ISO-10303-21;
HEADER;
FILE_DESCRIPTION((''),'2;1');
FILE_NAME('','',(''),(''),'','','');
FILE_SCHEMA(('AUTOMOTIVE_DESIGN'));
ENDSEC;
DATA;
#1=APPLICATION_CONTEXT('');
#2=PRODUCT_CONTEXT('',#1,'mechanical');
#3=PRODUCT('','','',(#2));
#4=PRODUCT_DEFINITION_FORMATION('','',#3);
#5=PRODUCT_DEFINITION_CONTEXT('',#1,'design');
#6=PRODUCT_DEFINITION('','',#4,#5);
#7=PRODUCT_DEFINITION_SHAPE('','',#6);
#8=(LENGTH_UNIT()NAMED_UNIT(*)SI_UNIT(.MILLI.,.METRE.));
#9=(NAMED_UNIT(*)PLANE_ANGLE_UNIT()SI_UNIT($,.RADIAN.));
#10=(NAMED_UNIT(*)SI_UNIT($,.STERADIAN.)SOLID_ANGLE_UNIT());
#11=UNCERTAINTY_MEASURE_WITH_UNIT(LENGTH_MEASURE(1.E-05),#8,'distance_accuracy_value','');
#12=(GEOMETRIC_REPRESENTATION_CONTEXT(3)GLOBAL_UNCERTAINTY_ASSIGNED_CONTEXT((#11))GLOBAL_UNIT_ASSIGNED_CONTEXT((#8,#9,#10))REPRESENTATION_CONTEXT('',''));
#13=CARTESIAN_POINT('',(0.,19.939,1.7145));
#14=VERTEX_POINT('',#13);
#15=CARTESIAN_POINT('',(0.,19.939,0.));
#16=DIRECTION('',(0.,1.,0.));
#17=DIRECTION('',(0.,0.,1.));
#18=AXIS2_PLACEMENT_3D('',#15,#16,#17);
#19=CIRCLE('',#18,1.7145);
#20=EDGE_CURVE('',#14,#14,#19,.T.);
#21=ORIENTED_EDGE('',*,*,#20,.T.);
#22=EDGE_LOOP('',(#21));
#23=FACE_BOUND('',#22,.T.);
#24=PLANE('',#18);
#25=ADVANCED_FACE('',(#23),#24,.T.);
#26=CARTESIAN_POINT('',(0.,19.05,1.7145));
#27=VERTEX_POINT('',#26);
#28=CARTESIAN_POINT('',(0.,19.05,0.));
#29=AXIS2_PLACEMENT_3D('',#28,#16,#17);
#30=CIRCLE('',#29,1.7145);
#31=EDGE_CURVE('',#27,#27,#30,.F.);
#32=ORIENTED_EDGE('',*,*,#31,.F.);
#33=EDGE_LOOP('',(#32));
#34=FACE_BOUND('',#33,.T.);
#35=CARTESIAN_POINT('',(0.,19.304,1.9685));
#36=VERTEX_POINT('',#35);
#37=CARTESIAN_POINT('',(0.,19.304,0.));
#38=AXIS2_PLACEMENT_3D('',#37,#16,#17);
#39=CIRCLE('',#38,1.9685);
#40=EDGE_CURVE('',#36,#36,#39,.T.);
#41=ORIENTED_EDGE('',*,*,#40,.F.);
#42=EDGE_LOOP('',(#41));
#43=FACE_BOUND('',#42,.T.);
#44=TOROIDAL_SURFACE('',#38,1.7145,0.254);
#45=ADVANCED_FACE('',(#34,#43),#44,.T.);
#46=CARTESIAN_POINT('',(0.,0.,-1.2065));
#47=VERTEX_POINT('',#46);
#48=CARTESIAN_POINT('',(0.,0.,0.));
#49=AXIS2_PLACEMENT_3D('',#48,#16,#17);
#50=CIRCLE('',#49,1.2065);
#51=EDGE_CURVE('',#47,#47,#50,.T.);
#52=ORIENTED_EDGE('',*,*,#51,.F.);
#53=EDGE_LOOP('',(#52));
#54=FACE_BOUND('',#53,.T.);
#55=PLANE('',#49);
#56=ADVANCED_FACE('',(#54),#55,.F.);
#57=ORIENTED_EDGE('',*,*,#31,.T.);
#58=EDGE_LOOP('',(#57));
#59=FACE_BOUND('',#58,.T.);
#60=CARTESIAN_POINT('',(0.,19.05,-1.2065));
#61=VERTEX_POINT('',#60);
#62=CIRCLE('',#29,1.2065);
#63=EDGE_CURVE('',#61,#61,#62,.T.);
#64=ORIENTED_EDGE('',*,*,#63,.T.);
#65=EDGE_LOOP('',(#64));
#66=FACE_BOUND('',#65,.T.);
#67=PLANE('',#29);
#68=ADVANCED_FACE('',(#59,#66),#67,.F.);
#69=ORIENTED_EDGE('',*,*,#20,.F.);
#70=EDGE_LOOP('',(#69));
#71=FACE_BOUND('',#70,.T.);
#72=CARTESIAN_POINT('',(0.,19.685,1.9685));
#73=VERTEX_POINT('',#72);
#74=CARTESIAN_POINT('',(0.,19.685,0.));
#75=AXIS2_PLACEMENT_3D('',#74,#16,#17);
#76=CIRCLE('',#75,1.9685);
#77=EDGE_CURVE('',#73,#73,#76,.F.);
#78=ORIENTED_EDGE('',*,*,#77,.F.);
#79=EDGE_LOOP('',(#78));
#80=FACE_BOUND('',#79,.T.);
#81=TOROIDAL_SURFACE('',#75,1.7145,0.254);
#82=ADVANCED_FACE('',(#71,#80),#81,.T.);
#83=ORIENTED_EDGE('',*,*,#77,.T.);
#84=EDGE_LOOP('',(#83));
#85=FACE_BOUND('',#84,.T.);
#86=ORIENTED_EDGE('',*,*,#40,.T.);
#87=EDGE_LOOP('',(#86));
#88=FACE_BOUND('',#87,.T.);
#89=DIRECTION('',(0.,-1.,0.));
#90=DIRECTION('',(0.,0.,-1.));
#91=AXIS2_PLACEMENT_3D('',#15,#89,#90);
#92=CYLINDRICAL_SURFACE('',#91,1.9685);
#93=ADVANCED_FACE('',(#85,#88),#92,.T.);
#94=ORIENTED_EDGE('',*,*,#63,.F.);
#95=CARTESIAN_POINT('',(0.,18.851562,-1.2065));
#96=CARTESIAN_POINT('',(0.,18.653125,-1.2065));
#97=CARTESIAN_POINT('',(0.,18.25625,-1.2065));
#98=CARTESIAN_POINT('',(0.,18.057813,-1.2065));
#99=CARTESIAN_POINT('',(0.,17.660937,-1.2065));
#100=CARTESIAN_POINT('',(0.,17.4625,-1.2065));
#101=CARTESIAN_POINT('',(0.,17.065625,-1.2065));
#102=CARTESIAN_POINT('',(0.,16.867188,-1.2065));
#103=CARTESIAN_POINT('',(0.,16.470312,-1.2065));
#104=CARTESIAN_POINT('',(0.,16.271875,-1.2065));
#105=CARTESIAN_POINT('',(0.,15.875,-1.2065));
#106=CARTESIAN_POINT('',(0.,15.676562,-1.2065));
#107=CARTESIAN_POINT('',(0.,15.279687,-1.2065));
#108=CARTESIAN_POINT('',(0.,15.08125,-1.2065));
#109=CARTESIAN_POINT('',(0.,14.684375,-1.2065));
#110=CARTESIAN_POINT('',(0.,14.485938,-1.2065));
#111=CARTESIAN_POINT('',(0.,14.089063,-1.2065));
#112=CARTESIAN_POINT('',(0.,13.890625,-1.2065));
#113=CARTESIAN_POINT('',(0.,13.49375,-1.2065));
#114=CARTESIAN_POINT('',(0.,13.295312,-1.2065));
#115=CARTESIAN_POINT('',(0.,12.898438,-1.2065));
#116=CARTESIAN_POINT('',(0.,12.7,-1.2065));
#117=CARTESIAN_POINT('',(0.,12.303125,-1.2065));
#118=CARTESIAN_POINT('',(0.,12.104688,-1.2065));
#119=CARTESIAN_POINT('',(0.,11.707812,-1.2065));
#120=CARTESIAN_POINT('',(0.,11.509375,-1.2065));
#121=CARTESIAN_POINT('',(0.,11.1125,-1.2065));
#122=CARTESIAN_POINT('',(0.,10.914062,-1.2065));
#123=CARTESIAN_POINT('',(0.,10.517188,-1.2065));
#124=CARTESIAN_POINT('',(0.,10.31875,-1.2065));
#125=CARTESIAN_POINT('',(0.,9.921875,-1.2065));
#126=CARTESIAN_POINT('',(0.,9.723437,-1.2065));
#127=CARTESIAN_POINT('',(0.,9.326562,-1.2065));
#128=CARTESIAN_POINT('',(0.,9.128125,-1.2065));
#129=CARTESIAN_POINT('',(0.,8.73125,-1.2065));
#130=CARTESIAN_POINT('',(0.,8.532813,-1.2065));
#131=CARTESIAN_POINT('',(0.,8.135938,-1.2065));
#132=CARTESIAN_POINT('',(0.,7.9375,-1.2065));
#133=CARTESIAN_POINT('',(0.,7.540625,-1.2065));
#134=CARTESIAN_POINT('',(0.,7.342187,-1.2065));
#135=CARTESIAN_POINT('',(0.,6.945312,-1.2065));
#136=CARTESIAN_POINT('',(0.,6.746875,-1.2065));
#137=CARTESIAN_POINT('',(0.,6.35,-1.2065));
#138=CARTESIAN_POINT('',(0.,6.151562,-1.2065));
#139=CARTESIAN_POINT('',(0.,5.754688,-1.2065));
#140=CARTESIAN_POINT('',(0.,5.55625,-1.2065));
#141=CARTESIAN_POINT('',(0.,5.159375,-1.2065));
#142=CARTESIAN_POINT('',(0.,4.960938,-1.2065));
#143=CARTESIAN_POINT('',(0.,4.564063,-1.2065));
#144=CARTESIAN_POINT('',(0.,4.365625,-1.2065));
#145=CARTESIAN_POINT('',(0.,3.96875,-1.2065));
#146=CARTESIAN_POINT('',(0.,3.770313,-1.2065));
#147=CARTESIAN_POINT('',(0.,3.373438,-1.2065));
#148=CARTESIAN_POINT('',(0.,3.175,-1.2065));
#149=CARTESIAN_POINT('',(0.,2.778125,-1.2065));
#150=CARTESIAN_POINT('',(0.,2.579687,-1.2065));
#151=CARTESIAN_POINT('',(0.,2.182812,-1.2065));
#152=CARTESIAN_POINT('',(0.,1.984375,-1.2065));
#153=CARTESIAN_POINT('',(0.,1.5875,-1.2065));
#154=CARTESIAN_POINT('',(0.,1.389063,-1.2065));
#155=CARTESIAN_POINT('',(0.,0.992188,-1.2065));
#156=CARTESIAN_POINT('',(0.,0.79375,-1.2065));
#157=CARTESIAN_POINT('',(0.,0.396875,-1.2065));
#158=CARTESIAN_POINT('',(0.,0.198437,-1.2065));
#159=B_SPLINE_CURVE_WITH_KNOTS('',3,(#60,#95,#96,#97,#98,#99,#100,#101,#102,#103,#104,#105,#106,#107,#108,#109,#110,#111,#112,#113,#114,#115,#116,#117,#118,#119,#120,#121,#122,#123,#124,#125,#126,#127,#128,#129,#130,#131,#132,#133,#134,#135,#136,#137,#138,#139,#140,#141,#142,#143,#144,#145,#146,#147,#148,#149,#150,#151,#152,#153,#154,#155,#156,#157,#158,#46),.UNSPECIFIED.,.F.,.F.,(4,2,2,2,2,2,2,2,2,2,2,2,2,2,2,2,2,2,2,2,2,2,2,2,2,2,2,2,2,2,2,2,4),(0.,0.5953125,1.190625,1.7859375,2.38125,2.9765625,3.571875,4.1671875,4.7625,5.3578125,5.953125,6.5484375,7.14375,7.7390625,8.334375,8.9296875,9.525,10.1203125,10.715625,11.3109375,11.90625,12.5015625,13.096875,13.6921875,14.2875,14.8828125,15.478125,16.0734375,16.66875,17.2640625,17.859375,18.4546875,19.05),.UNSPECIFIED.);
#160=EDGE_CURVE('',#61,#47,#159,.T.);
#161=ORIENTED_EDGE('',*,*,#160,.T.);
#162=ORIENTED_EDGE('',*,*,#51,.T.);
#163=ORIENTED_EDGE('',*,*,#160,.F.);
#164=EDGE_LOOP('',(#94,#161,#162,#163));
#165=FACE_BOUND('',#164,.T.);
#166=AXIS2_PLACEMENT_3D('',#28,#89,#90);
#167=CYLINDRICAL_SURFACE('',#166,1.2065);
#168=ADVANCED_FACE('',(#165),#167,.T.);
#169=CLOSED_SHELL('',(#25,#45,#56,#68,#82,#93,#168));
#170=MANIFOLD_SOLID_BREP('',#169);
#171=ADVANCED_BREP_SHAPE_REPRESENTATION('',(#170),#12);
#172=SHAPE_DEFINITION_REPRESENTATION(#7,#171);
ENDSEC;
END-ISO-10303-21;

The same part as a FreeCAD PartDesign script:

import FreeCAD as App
import Part
import Sketcher

V = App.Vector
Q = App.Units.Quantity


def edges_at(feature, points):
    """Names of the edges that pass closest to the given points."""
    edges = feature.Shape.Edges
    near = lambda p: min(range(len(edges)), key=lambda i: edges[i].distToShape(Part.Vertex(*p))[0])
    return sorted({f"Edge{near(p) + 1}" for p in points})

doc = App.newDocument("Part")
body = doc.addObject("PartDesign::Body", "Body")

sketch1 = doc.addObject("Sketcher::SketchObject", "Sketch")
body.addObject(sketch1)
sketch1.AttachmentSupport = (doc.XZ_Plane, [""])
sketch1.MapMode = "FlatFace"
sketch1.addGeometry(Part.Circle(V(0, 0, 0), V(0, 0, 1), 1.2065), False)
sketch1.addConstraint([
    Sketcher.Constraint("Coincident", 0, 3, -1, 1),
    Sketcher.Constraint("Diameter", 0, Q("0.095 in")),
])
pad1 = doc.addObject("PartDesign::Pad", "Pad")
body.addObject(pad1)
pad1.Profile = sketch1
pad1.Length = Q("0.75 in")
pad1.Reversed = True

sketch2 = doc.addObject("Sketcher::SketchObject", "Sketch001")
body.addObject(sketch2)
sketch2.AttachmentSupport = (doc.XZ_Plane, [""])
sketch2.MapMode = "FlatFace"
sketch2.AttachmentOffset = App.Placement(V(0, 0, -0.75 * 25.4), App.Rotation())
sketch2.addGeometry(Part.Circle(V(0, 0, 0), V(0, 0, 1), 1.9685), False)
sketch2.addConstraint([
    Sketcher.Constraint("Coincident", 0, 3, -1, 1),
    Sketcher.Constraint("Diameter", 0, Q("0.155 in")),
])
pad2 = doc.addObject("PartDesign::Pad", "Pad001")
body.addObject(pad2)
pad2.Profile = sketch2
pad2.Length = Q("0.035 in")
pad2.Reversed = True
doc.recompute()

fillet = doc.addObject("PartDesign::Fillet", "Fillet")
body.addObject(fillet)
fillet.Base = (pad2, edges_at(pad2, [(0, 19.05, -1.968), (0, 19.939, -1.968)]))
fillet.Radius = Q("0.01 in")

doc.recompute()
